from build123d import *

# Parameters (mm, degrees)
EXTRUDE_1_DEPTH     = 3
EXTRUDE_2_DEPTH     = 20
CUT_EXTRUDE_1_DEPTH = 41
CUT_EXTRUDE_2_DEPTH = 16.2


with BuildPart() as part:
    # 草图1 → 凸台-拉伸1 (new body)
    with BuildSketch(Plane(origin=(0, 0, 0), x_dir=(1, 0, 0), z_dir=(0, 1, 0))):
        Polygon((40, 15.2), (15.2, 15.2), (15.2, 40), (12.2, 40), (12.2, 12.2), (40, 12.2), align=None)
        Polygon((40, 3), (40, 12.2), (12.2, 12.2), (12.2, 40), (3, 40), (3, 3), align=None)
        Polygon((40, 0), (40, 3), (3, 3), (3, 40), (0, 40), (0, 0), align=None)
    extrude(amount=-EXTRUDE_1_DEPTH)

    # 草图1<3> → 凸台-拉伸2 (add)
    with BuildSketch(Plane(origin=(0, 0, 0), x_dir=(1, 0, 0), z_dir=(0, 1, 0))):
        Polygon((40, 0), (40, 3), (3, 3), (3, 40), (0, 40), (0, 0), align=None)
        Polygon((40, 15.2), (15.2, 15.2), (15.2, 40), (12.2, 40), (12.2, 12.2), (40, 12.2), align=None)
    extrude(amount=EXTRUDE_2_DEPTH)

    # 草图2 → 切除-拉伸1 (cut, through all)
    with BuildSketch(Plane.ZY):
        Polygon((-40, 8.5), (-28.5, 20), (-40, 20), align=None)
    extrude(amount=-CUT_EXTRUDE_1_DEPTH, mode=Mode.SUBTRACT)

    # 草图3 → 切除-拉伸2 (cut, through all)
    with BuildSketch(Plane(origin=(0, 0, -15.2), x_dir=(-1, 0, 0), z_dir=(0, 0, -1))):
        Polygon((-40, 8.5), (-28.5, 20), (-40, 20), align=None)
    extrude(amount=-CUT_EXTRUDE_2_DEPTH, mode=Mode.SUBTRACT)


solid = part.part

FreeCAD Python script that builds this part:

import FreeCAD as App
import Part
import Sketcher


def add_polygon(sketch, points):
    """Adds a closed chain of lines whose ends are joined by coincident constraints."""
    first, n = sketch.GeometryCount, len(points)
    for a, b in zip(points, points[1:] + points[:1]):
        sketch.addGeometry(Part.LineSegment(App.Vector(*a, 0), App.Vector(*b, 0)), False)
    for i in range(n):
        sketch.addConstraint(Sketcher.Constraint("Coincident", first + i, 2, first + (i + 1) % n, 1))

doc = App.newDocument("Part")
body = doc.addObject("PartDesign::Body", "Body")

sketch1 = body.newObject("Sketcher::SketchObject", "Sketch")
sketch1.AttachmentSupport = (doc.getObject("XZ_Plane"), [""])
sketch1.MapMode = "FlatFace"
add_polygon(sketch1, [(40, -15), (15, -15), (15, -40), (0, -40), (0, 0), (40, 0)])
sketch1.addConstraint([
    Sketcher.Constraint("Horizontal", 0),
    Sketcher.Constraint("Vertical", 1),
    Sketcher.Constraint("Horizontal", 2),
    Sketcher.Constraint("Vertical", 3),
    Sketcher.Constraint("Horizontal", 4),
    Sketcher.Constraint("Vertical", 5),
    Sketcher.Constraint("Coincident", 3, 2, -1, 1),
    Sketcher.Constraint("Equal", 0, 1),
    Sketcher.Constraint("Equal", 4, 3),
    Sketcher.Constraint("DistanceX", 4, 1, 4, 2, 40.0),
    Sketcher.Constraint("DistanceX", 0, 2, 0, 1, 24.8),
])
pad1 = body.newObject("PartDesign::Pad", "Pad")
pad1.Profile = sketch1
pad1.Length = 3

sketch2 = body.newObject("Sketcher::SketchObject", "Sketch001")
sketch2.AttachmentSupport = (doc.getObject("XZ_Plane"), [""])
sketch2.MapMode = "FlatFace"
add_polygon(sketch2, [(40, 0), (40, -3), (3, -3), (3, -40), (0, -40), (0, 0)])
add_polygon(sketch2, [(40, -15.2), (15.2, -15.2), (15.2, -40), (12.2, -40), (12.2, -12.2), (40, -12.2)])
sketch2.addConstraint([
    Sketcher.Constraint("Vertical", 0),
    Sketcher.Constraint("Horizontal", 1),
    Sketcher.Constraint("Vertical", 2),
    Sketcher.Constraint("Horizontal", 3),
    Sketcher.Constraint("Vertical", 4),
    Sketcher.Constraint("Horizontal", 5),
    Sketcher.Constraint("Horizontal", 6),
    Sketcher.Constraint("Vertical", 7),
    Sketcher.Constraint("Horizontal", 8),
    Sketcher.Constraint("Vertical", 9),
    Sketcher.Constraint("Horizontal", 10),
    Sketcher.Constraint("Vertical", 11),
    Sketcher.Constraint("Coincident", 4, 2, -1, 1),
    Sketcher.Constraint("Horizontal", 3, 2, 7, 2),
    Sketcher.Constraint("Vertical", 5, 2, 10, 2),
    Sketcher.Constraint("Equal", 3, 8),
    Sketcher.Constraint("Equal", 8, 0),
    Sketcher.Constraint("Equal", 1, 2),
    Sketcher.Constraint("Equal", 6, 7),
    Sketcher.Constraint("Equal", 10, 9),
    Sketcher.Constraint("DistanceX", 1, 2, 1, 1, 37.0),
    Sketcher.Constraint("DistanceX", 3, 2, 3, 1, 3.0),
    Sketcher.Constraint("DistanceX", 6, 2, 6, 1, 24.8),
])
pad2 = body.newObject("PartDesign::Pad", "Pad001")
pad2.Profile = sketch2
pad2.Length = 20
pad2.Reversed = True

sketch3 = body.newObject("Sketcher::SketchObject", "Sketch002")
sketch3.AttachmentSupport = (doc.getObject("YZ_Plane"), [""])
sketch3.MapMode = "FlatFace"
add_polygon(sketch3, [(8, -40), (20, -28), (20, -40)])
sketch3.addConstraint([
    Sketcher.Constraint("Vertical", 1),
    Sketcher.Constraint("Horizontal", 2),
    Sketcher.Constraint("Equal", 2, 1),
    Sketcher.Constraint("DistanceX", 2, 2, 2, 1, 11.5),
    Sketcher.Constraint("DistanceX", -1, 1, 0, 2, 20.0),
    Sketcher.Constraint("DistanceY", 1, 2, -1, 1, 40.0),
])
pocket1 = body.newObject("PartDesign::Pocket", "Pocket")
pocket1.Profile = sketch3
pocket1.Type = "ThroughAll"
pocket1.Reversed = True

sketch4 = body.newObject("Sketcher::SketchObject", "Sketch003")
sketch4.AttachmentSupport = (doc.getObject("XY_Plane"), [""])
sketch4.MapMode = "FlatFace"
sketch4.AttachmentOffset = App.Placement(App.Vector(0, 0, -15.2), App.Rotation())
add_polygon(sketch4, [(40, 8), (28, 20), (40, 20)])
sketch4.addConstraint([
    Sketcher.Constraint("Horizontal", 1),
    Sketcher.Constraint("Vertical", 2),
    Sketcher.Constraint("Equal", 1, 2),
    Sketcher.Constraint("DistanceX", 1, 1, 1, 2, 11.5),
    Sketcher.Constraint("DistanceY", -1, 1, 0, 2, 20.0),
    Sketcher.Constraint("DistanceX", -1, 1, 1, 2, 40.0),
])
pocket2 = body.newObject("PartDesign::Pocket", "Pocket001")
pocket2.Profile = sketch4
pocket2.Type = "ThroughAll"
pocket2.Reversed = True

doc.recompute()
